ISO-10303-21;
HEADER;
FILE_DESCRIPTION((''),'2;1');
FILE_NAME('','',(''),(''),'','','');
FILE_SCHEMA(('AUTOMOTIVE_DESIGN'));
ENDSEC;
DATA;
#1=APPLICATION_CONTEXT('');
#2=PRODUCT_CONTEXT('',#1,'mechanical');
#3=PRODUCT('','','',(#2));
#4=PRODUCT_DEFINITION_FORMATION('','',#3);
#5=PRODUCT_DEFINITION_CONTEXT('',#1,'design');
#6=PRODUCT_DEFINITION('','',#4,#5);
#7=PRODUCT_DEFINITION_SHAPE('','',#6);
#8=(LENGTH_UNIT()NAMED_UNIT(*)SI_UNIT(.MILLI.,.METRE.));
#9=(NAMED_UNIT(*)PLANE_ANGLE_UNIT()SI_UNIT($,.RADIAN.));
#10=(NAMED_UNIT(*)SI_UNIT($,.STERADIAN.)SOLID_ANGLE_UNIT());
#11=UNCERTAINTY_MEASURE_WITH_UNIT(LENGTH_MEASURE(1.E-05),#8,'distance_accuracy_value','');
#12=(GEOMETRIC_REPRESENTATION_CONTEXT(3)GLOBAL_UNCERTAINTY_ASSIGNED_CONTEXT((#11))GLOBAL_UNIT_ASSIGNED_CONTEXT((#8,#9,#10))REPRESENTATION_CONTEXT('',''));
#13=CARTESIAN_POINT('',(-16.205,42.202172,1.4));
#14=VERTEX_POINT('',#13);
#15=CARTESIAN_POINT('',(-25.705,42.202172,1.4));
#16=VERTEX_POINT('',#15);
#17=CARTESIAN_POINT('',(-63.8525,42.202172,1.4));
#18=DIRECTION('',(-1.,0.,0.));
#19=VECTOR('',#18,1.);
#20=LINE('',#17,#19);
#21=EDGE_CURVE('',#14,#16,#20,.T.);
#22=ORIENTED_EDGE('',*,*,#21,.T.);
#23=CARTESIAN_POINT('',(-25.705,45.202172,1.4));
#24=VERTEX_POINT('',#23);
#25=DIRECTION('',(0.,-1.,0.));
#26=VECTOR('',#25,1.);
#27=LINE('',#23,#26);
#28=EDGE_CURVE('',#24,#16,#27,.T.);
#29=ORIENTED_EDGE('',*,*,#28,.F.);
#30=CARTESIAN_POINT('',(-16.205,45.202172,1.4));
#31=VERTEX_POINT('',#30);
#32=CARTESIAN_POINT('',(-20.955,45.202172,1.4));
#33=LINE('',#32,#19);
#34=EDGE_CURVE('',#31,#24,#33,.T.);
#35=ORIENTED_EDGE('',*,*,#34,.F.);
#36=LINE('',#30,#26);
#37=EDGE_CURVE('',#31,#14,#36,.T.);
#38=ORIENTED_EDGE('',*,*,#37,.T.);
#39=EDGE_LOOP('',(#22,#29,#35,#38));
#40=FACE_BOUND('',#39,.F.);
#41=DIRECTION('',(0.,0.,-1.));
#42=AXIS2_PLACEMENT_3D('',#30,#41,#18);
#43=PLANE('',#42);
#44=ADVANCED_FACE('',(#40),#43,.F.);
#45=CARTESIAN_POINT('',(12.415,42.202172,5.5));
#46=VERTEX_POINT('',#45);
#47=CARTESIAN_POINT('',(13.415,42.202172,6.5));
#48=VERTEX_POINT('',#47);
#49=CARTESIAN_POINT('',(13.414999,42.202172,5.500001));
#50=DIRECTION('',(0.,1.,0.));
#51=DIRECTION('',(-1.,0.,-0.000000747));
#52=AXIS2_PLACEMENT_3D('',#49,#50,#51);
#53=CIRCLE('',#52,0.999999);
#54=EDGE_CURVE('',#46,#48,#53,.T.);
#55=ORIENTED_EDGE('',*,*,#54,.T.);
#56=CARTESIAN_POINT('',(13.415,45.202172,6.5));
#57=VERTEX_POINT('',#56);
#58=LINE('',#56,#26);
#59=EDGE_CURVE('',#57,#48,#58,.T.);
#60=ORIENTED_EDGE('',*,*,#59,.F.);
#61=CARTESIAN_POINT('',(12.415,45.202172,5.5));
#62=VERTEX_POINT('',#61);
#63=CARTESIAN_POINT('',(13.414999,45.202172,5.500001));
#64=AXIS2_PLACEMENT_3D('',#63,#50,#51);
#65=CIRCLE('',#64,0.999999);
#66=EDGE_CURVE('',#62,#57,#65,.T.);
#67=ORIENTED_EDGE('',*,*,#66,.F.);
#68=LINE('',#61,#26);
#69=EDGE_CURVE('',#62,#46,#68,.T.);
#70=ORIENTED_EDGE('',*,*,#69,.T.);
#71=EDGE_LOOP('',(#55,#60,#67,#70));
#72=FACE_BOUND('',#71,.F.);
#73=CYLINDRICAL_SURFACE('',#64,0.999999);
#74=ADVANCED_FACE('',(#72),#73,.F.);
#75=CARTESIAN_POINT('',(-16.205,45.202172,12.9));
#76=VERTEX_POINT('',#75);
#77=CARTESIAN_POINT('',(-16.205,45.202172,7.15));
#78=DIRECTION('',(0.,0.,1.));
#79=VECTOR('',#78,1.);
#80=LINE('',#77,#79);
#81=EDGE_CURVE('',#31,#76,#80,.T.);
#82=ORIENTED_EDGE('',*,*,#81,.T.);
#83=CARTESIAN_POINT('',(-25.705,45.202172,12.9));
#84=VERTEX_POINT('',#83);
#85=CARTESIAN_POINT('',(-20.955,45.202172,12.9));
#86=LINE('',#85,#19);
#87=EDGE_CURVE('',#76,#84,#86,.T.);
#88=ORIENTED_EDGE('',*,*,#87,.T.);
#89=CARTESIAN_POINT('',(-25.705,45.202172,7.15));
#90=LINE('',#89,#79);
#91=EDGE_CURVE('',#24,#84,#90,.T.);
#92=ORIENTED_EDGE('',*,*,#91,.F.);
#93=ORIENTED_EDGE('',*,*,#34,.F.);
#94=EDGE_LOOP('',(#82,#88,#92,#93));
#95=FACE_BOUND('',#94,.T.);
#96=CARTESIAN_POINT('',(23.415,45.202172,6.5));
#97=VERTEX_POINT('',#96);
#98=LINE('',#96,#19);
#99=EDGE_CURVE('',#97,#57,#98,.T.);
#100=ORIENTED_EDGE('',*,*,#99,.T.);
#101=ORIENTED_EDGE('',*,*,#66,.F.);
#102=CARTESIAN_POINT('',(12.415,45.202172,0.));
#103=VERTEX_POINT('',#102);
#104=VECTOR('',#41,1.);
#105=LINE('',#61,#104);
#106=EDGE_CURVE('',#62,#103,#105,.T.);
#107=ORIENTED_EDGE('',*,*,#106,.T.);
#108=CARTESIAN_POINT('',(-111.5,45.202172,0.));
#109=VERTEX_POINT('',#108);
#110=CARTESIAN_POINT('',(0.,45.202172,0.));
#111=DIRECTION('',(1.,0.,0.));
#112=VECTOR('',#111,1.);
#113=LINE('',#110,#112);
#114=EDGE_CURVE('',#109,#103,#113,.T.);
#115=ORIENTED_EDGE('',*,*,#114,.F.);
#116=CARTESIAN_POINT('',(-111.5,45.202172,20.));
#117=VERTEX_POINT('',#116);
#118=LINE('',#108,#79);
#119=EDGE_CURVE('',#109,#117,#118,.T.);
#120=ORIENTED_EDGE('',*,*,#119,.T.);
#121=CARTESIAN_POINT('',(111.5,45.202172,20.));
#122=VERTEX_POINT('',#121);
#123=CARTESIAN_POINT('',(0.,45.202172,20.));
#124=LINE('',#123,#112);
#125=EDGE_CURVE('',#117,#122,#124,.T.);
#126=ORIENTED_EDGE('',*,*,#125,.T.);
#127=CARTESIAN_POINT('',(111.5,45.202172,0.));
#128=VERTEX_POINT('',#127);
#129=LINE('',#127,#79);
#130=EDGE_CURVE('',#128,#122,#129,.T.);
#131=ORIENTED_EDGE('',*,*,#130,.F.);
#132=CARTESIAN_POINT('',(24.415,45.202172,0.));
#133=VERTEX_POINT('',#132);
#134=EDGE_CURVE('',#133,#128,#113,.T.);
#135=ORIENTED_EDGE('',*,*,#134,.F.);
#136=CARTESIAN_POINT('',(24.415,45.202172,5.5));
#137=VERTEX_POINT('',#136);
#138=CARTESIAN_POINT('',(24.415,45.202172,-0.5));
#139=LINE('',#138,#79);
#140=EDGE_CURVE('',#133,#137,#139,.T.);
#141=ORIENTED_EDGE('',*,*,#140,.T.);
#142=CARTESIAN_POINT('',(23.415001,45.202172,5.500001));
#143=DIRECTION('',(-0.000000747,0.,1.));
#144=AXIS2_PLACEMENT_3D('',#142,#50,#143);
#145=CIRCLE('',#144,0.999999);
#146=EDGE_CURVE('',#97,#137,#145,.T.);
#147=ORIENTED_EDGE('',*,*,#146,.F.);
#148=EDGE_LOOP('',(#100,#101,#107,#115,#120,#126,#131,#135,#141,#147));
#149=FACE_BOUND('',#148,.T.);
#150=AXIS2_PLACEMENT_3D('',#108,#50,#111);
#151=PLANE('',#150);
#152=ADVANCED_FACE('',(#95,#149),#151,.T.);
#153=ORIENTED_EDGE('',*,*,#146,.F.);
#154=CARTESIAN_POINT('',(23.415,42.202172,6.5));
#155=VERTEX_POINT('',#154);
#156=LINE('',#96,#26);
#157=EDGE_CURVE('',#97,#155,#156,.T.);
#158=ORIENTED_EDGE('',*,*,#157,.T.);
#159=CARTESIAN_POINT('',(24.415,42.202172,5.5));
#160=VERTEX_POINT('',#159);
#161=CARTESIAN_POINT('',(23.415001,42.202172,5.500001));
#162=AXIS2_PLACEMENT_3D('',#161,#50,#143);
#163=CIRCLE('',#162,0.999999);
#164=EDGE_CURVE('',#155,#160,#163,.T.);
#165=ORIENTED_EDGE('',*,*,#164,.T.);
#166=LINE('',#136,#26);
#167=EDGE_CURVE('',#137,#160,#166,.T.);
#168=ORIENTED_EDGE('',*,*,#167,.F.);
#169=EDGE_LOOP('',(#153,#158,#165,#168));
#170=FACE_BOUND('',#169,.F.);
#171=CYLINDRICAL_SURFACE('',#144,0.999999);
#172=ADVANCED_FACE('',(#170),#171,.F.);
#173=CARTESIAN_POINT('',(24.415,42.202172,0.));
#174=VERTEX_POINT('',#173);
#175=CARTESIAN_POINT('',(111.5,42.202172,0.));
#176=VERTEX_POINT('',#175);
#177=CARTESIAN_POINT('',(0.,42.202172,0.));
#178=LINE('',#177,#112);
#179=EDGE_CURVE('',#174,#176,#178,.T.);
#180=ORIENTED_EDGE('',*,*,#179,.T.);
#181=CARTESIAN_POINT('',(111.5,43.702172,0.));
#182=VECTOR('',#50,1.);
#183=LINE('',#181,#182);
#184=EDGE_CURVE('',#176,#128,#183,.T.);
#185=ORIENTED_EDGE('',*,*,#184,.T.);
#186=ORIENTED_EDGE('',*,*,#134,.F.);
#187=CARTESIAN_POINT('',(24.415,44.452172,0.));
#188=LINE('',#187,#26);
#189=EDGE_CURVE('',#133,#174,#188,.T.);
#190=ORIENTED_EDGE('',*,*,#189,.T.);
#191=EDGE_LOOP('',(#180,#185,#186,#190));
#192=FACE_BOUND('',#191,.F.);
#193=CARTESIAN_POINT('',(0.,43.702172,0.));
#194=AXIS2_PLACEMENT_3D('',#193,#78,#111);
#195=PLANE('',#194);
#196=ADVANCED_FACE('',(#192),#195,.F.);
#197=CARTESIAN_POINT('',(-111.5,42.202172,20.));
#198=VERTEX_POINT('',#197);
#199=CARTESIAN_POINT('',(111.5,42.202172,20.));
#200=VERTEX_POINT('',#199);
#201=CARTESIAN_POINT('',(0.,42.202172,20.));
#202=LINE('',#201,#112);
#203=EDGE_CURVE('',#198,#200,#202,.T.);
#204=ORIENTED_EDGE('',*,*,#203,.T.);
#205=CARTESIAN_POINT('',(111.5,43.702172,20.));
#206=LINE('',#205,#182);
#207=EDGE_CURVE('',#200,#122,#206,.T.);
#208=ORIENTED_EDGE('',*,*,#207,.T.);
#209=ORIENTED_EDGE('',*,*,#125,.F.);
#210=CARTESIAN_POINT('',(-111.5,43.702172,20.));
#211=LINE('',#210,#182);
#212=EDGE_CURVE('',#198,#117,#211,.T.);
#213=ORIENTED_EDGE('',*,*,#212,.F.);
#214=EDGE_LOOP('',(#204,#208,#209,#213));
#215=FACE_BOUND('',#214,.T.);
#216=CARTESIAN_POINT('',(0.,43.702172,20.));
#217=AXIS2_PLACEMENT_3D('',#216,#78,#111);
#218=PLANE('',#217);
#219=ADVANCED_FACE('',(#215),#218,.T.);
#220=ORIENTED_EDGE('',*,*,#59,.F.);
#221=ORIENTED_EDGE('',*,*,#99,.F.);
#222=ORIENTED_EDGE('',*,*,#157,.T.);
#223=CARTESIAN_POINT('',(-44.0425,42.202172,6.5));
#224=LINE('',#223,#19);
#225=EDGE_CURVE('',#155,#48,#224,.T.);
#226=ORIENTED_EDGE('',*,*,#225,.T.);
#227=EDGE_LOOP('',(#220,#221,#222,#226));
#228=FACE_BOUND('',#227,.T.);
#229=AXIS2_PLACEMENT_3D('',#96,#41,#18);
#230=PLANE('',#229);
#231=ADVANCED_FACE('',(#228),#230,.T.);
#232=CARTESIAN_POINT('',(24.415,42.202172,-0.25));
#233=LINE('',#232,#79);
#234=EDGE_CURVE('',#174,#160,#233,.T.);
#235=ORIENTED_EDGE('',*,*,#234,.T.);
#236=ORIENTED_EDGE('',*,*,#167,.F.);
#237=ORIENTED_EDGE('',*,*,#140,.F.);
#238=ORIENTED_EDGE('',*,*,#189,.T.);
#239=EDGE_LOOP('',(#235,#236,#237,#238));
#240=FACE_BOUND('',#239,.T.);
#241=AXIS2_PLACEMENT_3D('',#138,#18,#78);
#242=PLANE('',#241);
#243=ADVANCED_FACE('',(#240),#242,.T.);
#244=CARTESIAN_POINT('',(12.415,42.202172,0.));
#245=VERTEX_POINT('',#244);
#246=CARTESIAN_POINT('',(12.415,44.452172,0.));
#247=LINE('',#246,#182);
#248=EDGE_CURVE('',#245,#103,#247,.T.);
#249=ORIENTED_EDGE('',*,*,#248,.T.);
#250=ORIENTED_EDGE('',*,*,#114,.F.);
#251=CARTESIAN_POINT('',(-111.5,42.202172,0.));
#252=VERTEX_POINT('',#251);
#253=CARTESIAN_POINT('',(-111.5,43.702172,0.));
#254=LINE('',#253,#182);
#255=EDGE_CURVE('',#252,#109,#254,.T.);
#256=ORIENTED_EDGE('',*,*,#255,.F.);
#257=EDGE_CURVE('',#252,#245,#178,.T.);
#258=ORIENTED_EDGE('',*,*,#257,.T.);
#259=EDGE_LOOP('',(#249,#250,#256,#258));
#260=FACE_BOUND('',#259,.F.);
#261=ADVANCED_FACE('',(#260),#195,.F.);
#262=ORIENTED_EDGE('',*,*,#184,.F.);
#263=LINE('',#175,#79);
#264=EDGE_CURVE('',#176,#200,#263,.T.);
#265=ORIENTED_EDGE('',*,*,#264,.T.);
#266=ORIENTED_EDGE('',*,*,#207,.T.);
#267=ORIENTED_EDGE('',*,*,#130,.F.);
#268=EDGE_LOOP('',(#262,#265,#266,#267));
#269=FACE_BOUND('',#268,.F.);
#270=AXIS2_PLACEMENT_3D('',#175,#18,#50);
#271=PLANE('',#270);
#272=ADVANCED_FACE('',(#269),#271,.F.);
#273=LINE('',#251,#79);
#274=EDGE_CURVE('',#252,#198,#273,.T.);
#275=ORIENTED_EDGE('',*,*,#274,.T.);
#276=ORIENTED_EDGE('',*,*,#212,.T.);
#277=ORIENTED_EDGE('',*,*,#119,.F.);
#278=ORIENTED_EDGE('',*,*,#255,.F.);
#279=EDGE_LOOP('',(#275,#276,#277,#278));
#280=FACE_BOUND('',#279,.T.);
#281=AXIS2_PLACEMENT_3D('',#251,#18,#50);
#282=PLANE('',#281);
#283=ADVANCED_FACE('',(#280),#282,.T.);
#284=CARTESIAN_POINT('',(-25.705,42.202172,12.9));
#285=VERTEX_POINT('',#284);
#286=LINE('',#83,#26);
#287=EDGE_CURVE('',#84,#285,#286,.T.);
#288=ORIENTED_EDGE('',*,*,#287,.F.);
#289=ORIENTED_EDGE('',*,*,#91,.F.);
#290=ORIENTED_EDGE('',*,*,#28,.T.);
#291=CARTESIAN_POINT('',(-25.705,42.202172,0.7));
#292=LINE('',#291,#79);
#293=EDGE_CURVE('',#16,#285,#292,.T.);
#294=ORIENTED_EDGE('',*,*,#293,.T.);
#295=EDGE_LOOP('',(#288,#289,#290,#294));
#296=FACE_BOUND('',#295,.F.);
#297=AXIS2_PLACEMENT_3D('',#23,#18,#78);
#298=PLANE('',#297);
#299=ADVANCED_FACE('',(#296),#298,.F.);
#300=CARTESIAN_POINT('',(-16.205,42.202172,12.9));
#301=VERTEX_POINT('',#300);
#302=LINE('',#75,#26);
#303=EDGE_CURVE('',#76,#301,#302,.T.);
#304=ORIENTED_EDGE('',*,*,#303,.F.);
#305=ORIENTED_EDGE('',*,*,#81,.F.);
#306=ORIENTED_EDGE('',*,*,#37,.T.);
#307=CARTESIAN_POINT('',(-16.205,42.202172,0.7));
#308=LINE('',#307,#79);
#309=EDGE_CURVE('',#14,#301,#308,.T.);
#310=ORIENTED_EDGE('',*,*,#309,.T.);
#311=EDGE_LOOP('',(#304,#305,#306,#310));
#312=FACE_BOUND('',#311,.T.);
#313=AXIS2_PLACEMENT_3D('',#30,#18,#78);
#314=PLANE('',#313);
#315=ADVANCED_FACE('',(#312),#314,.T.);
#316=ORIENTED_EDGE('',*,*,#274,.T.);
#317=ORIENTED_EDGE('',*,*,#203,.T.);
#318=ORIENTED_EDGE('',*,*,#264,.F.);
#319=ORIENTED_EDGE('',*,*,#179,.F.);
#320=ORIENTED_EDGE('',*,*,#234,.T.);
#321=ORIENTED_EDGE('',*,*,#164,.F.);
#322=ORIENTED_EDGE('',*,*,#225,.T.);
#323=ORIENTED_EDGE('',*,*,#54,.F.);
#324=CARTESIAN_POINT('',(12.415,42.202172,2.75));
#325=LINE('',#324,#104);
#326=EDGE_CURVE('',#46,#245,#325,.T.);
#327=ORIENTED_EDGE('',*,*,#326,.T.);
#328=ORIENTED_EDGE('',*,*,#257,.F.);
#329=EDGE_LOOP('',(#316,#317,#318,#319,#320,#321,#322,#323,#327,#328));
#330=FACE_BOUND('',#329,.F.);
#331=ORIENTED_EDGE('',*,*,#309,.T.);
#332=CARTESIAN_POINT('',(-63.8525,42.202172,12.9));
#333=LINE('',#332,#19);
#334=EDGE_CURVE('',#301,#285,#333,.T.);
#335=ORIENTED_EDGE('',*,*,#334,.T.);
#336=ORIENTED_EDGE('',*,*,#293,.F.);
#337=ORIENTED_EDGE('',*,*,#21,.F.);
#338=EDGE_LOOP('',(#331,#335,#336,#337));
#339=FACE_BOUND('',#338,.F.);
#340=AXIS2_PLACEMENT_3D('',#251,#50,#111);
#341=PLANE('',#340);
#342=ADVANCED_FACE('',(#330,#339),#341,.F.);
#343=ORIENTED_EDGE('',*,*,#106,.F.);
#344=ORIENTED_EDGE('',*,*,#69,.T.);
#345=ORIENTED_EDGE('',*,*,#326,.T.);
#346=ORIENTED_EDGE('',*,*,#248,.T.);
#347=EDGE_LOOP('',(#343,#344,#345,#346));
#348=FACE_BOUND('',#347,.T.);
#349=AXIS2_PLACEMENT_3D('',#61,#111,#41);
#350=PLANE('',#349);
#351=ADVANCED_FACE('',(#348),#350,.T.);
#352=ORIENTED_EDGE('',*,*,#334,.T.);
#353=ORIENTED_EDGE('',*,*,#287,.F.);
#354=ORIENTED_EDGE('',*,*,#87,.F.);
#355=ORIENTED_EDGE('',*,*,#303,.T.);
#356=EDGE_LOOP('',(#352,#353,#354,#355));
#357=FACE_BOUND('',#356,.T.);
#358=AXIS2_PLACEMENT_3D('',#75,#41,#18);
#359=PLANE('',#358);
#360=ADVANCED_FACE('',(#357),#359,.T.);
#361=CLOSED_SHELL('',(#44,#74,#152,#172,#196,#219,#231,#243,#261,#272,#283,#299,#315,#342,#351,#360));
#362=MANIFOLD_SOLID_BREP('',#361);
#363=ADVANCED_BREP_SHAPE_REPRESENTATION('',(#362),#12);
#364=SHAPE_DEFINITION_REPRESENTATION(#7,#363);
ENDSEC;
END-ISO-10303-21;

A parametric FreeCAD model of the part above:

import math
import FreeCAD as App
import Part
import Sketcher

V = App.Vector

doc = App.newDocument("Part")
body = doc.addObject("PartDesign::Body", "Body")

# Sketch on XY plane
sketch1 = body.newObject("Sketcher::SketchObject", "Sketch")
sketch1.AttachmentSupport = (doc.getObject("XY_Plane"), [""])
sketch1.MapMode = "FlatFace"
sketch1.addGeometry([
    Part.LineSegment(V(-111.5, -43.2, 0), V(-111.5, -46.2, 0)),
    Part.LineSegment(V(-111.5, -46.2, 0), V(111.5, -46.2, 0)),
    Part.LineSegment(V(111.5, -46.2, 0), V(111.5, -43.2, 0)),
    Part.LineSegment(V(111.5, -43.2, 0), V(-111.5, -43.2, 0)),
], False)
sketch1.addConstraint([
    Sketcher.Constraint("Coincident", 0, 2, 1, 1),
    Sketcher.Constraint("Coincident", 1, 2, 2, 1),
    Sketcher.Constraint("Coincident", 2, 2, 3, 1),
    Sketcher.Constraint("Coincident", 3, 2, 0, 1),
    Sketcher.Constraint("Vertical", 0),
    Sketcher.Constraint("Horizontal", 1),
    Sketcher.Constraint("Vertical", 2),
    Sketcher.Constraint("Horizontal", 3),
    Sketcher.Constraint("DistanceX", 1, 1, 1, 2, 223.0),
    Sketcher.Constraint("DistanceY", 0, 2, 0, 1, 3.0),
    Sketcher.Constraint("DistanceX", 0, 2, -1, 1, 111.5),
    Sketcher.Constraint("DistanceY", 0, 2, -1, 1, 46.189828),
])
pad1 = body.newObject("PartDesign::Pad", "Pad")
pad1.Profile = sketch1
pad1.Length = 20

# Sketch on XZ plane
sketch2 = body.newObject("Sketcher::SketchObject", "Sketch001")
sketch2.AttachmentSupport = (doc.getObject("XZ_Plane"), [""])
sketch2.MapMode = "FlatFace"
sketch2.AttachmentOffset = App.Placement(V(0, 0, 43.189828), App.Rotation())
sketch2.addGeometry([
    Part.LineSegment(V(-16, 13, 0), V(-16, 1, 0)),
    Part.LineSegment(V(-16, 1, 0), V(-26, 1, 0)),
    Part.LineSegment(V(-26, 1, 0), V(-26, 13, 0)),
    Part.LineSegment(V(-26, 13, 0), V(-16, 13, 0)),
], False)
sketch2.addConstraint([
    Sketcher.Constraint("Coincident", 0, 2, 1, 1),
    Sketcher.Constraint("Coincident", 1, 2, 2, 1),
    Sketcher.Constraint("Coincident", 2, 2, 3, 1),
    Sketcher.Constraint("Coincident", 3, 2, 0, 1),
    Sketcher.Constraint("Vertical", 0),
    Sketcher.Constraint("Horizontal", 1),
    Sketcher.Constraint("Vertical", 2),
    Sketcher.Constraint("Horizontal", 3),
    Sketcher.Constraint("DistanceX", 1, 2, 1, 1, 9.5),
    Sketcher.Constraint("DistanceY", 0, 2, 0, 1, 11.5),
    Sketcher.Constraint("DistanceY", -1, 1, 0, 2, 1.4),
    Sketcher.Constraint("DistanceX", 0, 2, -1, 1, 16.205),
])
pocket1 = body.newObject("PartDesign::Pocket", "Pocket")
pocket1.Profile = sketch2
pocket1.Type = "ThroughAll"
pocket1.Reversed = True

# Sketch on XZ plane
sketch3 = body.newObject("Sketcher::SketchObject", "Sketch002")
sketch3.AttachmentSupport = (doc.getObject("XZ_Plane"), [""])
sketch3.MapMode = "FlatFace"
sketch3.AttachmentOffset = App.Placement(V(0, 0, 43.189828), App.Rotation())
sketch3.addGeometry([
    Part.LineSegment(V(13.4, 6.5, 0), V(23.4, 6.5, 0)),  # 0
    Part.ArcOfCircle(Part.Circle(V(23.4, 5.5, 0), V(0, 0, 1), 1), math.radians(0), math.radians(90)),  # 1
    Part.LineSegment(V(24.4, 5.5, 0), V(24.4, -0.5, 0)),  # 2
    Part.ArcOfCircle(Part.Circle(V(23.4, -0.5, 0), V(0, 0, 1), 1), math.radians(-90), math.radians(0)),  # 3
    Part.LineSegment(V(23.4, -1.5, 0), V(13.4, -1.5, 0)),  # 4
    Part.ArcOfCircle(Part.Circle(V(13.4, -0.5, 0), V(0, 0, 1), 1), math.radians(180), math.radians(270)),  # 5
    Part.LineSegment(V(12.4, -0.5, 0), V(12.4, 5.5, 0)),  # 6
    Part.ArcOfCircle(Part.Circle(V(13.4, 5.5, 0), V(0, 0, 1), 1), math.radians(90), math.radians(180)),  # 7
], False)
sketch3.addConstraint([
    Sketcher.Constraint("Tangent", 0, 2, 1, 2),
    Sketcher.Constraint("Tangent", 1, 1, 2, 1),
    Sketcher.Constraint("Tangent", 2, 2, 3, 2),
    Sketcher.Constraint("Tangent", 3, 1, 4, 1),
    Sketcher.Constraint("Tangent", 4, 2, 5, 2),
    Sketcher.Constraint("Tangent", 5, 1, 6, 1),
    Sketcher.Constraint("Tangent", 6, 2, 7, 2),
    Sketcher.Constraint("Tangent", 7, 1, 0, 1),
    Sketcher.Constraint("Horizontal", 0),
    Sketcher.Constraint("Vertical", 2),
    Sketcher.Constraint("Horizontal", 4),
    Sketcher.Constraint("Vertical", 6),
    Sketcher.Constraint("Equal", 1, 3),
    Sketcher.Constraint("Equal", 3, 5),
    Sketcher.Constraint("Equal", 5, 7),
    Sketcher.Constraint("Radius", 1, 0.999999),
    Sketcher.Constraint("DistanceX", 0, 1, 0, 2, 10.0),
    Sketcher.Constraint("DistanceY", 2, 2, 2, 1, 6.0),
    Sketcher.Constraint("DistanceY", -1, 1, 1, 3, 5.500001),
    Sketcher.Constraint("DistanceX", -1, 1, 1, 3, 23.415001),
])
pocket2 = body.newObject("PartDesign::Pocket", "Pocket001")
pocket2.Profile = sketch3
pocket2.Type = "ThroughAll"
pocket2.Reversed = True
body2 = doc.addObject("PartDesign::Body", "Body001")
doc.recompute()

body.Placement = App.Placement(V(0, 88.392, 0), App.Rotation(V(0, 0, 1), 0))
boolean = body2.newObject("PartDesign::Boolean", "Boolean")
boolean.Type = "Fuse"
boolean.addObjects([body])

doc.recompute()
